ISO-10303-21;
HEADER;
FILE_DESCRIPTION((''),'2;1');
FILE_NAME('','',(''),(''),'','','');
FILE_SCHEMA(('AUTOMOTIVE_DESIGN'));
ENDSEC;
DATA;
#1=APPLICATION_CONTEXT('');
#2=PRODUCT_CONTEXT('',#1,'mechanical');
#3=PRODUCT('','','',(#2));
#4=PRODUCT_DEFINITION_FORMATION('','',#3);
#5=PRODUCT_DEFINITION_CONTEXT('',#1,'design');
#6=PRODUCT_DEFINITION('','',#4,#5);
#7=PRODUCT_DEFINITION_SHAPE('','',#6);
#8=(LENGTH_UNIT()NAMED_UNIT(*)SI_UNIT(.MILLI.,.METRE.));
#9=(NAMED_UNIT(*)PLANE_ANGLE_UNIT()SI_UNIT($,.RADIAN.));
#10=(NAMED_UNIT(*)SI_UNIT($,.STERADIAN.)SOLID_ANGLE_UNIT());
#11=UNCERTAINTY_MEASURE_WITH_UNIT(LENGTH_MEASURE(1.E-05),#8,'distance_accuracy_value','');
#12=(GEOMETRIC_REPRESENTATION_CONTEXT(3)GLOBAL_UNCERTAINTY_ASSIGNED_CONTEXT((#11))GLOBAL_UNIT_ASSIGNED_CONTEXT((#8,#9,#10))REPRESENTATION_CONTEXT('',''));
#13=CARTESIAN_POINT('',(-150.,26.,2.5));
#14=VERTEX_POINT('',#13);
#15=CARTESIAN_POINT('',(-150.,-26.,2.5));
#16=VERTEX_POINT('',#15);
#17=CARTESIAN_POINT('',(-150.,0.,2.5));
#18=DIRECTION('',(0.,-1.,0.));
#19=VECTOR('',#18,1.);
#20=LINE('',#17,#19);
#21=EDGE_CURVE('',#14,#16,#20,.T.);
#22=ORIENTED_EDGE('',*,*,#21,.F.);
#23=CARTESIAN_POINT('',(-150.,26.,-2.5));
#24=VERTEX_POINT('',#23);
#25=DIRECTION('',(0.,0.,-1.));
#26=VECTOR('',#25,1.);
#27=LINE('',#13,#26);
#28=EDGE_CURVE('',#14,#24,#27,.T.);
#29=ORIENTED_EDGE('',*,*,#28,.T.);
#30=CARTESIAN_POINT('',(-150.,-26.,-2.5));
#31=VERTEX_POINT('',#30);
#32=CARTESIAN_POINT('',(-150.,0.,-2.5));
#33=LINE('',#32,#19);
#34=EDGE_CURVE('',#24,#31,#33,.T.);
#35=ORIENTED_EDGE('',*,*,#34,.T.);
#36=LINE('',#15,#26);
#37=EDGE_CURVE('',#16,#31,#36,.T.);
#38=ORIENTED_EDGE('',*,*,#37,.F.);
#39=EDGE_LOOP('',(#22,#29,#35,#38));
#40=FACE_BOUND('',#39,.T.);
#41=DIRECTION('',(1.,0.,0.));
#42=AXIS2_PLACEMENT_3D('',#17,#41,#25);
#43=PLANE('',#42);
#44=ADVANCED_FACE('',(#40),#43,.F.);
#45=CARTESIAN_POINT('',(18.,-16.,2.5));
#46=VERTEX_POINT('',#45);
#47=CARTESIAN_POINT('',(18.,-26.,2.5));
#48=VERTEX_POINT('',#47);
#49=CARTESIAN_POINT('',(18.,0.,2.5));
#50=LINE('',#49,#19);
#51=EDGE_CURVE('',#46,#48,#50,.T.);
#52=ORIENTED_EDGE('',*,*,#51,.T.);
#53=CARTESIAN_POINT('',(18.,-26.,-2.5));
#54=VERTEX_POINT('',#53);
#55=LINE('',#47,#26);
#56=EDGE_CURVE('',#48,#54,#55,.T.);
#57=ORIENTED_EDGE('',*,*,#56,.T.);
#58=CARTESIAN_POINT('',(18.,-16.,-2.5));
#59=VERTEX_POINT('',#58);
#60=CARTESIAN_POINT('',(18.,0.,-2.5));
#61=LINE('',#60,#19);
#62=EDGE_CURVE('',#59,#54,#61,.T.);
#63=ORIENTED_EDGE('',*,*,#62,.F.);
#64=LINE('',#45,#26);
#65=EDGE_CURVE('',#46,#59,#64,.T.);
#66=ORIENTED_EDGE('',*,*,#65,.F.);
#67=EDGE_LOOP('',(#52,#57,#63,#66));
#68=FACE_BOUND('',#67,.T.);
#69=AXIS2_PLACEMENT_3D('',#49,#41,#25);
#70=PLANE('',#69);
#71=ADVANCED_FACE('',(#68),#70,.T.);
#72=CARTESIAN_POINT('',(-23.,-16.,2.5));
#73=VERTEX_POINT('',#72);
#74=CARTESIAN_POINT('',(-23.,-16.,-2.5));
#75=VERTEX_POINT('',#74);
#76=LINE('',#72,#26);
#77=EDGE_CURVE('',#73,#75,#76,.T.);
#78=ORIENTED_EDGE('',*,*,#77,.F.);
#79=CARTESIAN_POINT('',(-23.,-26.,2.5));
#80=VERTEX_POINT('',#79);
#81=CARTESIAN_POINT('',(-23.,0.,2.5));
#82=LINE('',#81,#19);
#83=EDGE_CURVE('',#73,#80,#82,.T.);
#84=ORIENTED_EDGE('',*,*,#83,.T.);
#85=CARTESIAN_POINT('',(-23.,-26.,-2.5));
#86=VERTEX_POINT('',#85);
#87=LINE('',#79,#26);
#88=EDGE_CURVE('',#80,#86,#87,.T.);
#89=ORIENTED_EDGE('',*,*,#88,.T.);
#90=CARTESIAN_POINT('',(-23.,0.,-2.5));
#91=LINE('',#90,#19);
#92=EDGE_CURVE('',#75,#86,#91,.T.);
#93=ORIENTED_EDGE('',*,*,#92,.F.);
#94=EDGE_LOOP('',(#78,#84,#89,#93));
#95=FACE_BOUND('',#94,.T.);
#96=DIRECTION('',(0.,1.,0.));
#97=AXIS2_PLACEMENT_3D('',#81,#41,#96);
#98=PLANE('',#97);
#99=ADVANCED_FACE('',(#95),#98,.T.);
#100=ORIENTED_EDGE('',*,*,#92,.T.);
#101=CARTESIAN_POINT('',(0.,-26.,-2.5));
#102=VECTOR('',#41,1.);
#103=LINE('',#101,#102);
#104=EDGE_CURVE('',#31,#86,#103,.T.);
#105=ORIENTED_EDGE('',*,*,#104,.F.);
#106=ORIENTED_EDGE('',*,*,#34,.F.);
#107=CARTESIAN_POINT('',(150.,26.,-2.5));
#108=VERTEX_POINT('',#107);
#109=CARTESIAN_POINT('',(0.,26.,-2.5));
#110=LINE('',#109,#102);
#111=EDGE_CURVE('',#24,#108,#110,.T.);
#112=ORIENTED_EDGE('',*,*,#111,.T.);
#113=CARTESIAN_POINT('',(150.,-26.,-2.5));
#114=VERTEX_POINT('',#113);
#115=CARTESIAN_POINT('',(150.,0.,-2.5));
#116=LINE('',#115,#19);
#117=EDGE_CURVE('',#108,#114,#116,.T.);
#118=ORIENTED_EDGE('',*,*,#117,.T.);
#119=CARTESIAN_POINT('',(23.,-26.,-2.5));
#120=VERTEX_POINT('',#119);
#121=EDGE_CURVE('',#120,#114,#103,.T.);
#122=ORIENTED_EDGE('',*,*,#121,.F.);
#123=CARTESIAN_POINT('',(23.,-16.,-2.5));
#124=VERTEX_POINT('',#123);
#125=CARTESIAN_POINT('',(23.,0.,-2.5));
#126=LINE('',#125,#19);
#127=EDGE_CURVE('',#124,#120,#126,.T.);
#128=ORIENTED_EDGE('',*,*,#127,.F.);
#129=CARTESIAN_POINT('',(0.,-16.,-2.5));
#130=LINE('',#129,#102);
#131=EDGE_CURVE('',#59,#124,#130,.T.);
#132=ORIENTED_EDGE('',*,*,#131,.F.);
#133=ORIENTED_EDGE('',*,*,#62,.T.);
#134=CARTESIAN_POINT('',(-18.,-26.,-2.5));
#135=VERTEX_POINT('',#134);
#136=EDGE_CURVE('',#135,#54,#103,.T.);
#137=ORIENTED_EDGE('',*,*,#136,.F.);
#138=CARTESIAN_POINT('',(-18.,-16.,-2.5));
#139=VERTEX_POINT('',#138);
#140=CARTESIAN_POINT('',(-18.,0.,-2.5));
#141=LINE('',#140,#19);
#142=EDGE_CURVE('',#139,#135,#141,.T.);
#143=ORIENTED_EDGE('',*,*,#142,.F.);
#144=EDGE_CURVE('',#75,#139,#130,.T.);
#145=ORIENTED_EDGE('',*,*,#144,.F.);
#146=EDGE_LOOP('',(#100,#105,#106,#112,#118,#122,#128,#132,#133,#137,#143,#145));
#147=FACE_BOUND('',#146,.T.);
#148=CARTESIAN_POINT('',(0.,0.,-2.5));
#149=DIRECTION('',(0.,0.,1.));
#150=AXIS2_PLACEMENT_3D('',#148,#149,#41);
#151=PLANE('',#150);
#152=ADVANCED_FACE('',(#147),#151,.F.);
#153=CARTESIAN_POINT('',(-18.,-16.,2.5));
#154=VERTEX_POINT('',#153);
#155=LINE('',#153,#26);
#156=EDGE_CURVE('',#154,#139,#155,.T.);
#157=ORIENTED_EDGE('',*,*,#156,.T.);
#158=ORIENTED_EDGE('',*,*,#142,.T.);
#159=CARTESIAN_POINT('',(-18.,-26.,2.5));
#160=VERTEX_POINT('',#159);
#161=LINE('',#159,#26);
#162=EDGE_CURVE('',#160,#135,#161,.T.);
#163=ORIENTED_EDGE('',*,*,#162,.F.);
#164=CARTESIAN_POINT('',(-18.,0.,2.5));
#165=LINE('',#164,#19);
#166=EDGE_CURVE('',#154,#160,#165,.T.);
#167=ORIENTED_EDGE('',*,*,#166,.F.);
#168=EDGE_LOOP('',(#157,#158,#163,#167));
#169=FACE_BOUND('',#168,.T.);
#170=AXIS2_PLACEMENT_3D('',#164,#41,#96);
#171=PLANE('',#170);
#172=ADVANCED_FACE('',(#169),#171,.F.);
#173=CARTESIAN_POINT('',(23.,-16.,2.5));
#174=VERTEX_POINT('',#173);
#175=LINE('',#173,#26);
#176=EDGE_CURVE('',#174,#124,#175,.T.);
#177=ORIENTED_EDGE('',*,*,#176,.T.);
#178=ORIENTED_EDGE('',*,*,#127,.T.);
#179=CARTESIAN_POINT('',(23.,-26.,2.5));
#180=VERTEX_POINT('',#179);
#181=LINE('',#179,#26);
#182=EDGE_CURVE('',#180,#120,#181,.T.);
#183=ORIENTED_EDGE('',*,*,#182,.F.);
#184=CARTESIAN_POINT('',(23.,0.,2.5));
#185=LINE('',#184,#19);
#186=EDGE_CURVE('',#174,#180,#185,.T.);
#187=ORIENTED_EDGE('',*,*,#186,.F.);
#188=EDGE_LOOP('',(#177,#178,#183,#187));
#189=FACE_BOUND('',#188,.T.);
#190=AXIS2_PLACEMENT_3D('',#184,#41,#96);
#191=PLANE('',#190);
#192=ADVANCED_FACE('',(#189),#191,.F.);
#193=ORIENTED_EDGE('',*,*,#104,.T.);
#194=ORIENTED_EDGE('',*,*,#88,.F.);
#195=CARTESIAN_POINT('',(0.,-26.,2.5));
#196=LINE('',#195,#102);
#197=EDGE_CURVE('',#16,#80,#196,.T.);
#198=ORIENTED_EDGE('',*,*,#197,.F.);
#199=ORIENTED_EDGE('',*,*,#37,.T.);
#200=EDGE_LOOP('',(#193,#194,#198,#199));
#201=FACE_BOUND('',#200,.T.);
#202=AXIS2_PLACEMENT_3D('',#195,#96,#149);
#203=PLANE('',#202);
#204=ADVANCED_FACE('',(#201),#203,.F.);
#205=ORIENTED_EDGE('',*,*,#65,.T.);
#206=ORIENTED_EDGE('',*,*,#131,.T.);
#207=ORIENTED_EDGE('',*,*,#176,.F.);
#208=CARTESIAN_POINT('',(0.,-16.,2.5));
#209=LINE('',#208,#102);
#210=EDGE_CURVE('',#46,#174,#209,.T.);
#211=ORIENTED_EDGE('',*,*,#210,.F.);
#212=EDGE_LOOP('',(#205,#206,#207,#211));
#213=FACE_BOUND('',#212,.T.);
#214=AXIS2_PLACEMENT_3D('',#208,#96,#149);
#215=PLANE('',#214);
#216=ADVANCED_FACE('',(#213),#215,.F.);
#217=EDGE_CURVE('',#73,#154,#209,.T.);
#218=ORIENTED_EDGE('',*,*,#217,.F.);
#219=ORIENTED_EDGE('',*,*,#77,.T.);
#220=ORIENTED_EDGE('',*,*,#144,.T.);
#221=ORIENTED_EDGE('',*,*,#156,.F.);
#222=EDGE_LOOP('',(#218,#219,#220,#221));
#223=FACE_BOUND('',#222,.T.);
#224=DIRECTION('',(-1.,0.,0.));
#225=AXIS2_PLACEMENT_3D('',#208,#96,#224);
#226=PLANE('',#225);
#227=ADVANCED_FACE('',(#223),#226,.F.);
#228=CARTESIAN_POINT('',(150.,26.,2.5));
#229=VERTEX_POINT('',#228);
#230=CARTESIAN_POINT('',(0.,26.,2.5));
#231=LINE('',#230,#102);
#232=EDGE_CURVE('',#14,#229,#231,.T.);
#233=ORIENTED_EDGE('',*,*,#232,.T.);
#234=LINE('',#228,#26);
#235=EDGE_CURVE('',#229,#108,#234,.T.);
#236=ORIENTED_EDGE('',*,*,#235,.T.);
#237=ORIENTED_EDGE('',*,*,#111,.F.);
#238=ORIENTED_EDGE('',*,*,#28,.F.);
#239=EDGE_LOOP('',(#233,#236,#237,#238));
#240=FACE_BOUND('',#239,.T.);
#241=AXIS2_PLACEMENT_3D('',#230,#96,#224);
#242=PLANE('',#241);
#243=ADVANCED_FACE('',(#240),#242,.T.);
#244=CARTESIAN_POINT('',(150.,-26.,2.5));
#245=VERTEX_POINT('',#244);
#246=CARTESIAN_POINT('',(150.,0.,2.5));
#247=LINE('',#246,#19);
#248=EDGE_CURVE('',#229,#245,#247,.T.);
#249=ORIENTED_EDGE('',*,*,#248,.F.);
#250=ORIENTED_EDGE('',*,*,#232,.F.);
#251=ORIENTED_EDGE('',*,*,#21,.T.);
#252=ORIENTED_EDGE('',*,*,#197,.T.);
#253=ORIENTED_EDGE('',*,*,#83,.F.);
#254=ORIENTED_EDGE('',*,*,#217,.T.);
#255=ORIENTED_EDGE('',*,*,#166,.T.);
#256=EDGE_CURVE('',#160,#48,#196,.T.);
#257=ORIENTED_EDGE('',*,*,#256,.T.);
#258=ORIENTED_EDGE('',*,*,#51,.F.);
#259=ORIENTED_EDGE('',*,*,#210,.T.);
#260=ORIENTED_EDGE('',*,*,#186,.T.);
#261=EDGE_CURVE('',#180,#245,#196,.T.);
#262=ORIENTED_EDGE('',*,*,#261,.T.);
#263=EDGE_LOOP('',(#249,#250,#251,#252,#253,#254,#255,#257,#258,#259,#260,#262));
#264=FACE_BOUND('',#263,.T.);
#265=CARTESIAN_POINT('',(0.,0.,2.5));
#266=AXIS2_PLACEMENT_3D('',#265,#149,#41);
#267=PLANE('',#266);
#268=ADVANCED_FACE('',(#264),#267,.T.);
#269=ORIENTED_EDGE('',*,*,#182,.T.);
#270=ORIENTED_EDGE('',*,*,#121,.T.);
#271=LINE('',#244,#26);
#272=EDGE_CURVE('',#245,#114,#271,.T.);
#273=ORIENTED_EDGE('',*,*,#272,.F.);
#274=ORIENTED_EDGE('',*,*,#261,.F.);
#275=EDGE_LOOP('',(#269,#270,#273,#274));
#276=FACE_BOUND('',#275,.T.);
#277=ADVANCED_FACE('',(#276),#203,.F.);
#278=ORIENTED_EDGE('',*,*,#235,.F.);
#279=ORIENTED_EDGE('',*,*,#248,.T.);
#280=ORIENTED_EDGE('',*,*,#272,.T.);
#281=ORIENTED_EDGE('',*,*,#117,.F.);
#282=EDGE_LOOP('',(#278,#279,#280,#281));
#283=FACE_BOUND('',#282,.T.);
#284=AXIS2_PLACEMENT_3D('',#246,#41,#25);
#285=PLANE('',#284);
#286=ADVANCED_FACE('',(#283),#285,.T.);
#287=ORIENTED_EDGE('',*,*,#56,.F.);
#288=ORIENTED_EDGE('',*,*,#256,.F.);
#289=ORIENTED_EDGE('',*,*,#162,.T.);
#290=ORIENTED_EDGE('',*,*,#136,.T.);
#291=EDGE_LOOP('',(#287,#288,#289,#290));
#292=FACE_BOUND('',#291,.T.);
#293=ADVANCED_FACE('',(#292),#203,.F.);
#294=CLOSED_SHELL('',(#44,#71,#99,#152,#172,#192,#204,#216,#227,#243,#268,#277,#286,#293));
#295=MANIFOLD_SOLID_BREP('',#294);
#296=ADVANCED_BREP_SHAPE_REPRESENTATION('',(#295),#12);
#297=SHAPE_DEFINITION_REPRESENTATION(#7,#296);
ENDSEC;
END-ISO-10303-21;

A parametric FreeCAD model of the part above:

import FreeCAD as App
import Part
import Sketcher


def add_polygon(sketch, points):
    """Adds a closed chain of lines whose ends are joined by coincident constraints."""
    first, n = sketch.GeometryCount, len(points)
    for a, b in zip(points, points[1:] + points[:1]):
        sketch.addGeometry(Part.LineSegment(App.Vector(*a, 0), App.Vector(*b, 0)), False)
    for i in range(n):
        sketch.addConstraint(Sketcher.Constraint("Coincident", first + i, 2, first + (i + 1) % n, 1))

doc = App.newDocument("Part")
params = doc.addObject("Spreadsheet::Sheet", "Params")
for row, (alias, value) in enumerate([
    ("sketch1_width", "300 mm"),
    ("sketch1_width2", "127 mm"),
    ("sketch1_width3", "5 mm"),
    ("sketch1_height", "52 mm"),
    ("sketch1_height2", "10 mm"),
    ("pad1_length", "5 mm"),
], start=1):
    params.set(f"A{row}", alias)
    params.set(f"B{row}", "=" + value)
    params.setAlias(f"B{row}", alias)

body = doc.addObject("PartDesign::Body", "Body")

# Sketch on XY plane
sketch1 = body.newObject("Sketcher::SketchObject", "Sketch")
sketch1.AttachmentSupport = (doc.getObject("XY_Plane"), [""])
sketch1.MapMode = "FlatFace"
add_polygon(sketch1, [(150, 26), (-150, 26), (-150, -26), (-23, -26), (-23, -16), (-18, -16), (-18, -26), (18, -26), (18, -16), (23, -16), (23, -26), (150, -26)])  # lines 0-11
sketch1.addConstraint([
    Sketcher.Constraint("Horizontal", 0),
    Sketcher.Constraint("Vertical", 1),
    Sketcher.Constraint("Horizontal", 2),
    Sketcher.Constraint("Vertical", 3),
    Sketcher.Constraint("Horizontal", 4),
    Sketcher.Constraint("Vertical", 5),
    Sketcher.Constraint("Horizontal", 6),
    Sketcher.Constraint("Vertical", 7),
    Sketcher.Constraint("Horizontal", 8),
    Sketcher.Constraint("Vertical", 9),
    Sketcher.Constraint("Horizontal", 10),
    Sketcher.Constraint("Vertical", 11),
    Sketcher.Constraint("Symmetric", 0, 2, 10, 2, -1, 1),
    Sketcher.Constraint("Symmetric", 4, 2, 7, 2, -2),
    Sketcher.Constraint("Symmetric", 2, 2, 9, 2, -2),
    Sketcher.Constraint("Horizontal", 2, 2, 5, 2),
    Sketcher.Constraint("DistanceX", 0, 2, 0, 1, 300.0),
    Sketcher.Constraint("DistanceX", 2, 1, 2, 2, 127.0),
    Sketcher.Constraint("DistanceX", 4, 1, 4, 2, 5.0),
    Sketcher.Constraint("DistanceY", 1, 2, 1, 1, 52.0),
    Sketcher.Constraint("DistanceY", 3, 1, 3, 2, 10.0),
])
sketch1.setExpression("Constraints[28]", "Params.sketch1_width")
sketch1.setExpression("Constraints[29]", "Params.sketch1_width2")
sketch1.setExpression("Constraints[30]", "Params.sketch1_width3")
sketch1.setExpression("Constraints[31]", "Params.sketch1_height")
sketch1.setExpression("Constraints[32]", "Params.sketch1_height2")
pad1 = body.newObject("PartDesign::Pad", "Pad")
pad1.Profile = sketch1
pad1.setExpression("Length", "Params.pad1_length")
pad1.Midplane = True

doc.recompute()
